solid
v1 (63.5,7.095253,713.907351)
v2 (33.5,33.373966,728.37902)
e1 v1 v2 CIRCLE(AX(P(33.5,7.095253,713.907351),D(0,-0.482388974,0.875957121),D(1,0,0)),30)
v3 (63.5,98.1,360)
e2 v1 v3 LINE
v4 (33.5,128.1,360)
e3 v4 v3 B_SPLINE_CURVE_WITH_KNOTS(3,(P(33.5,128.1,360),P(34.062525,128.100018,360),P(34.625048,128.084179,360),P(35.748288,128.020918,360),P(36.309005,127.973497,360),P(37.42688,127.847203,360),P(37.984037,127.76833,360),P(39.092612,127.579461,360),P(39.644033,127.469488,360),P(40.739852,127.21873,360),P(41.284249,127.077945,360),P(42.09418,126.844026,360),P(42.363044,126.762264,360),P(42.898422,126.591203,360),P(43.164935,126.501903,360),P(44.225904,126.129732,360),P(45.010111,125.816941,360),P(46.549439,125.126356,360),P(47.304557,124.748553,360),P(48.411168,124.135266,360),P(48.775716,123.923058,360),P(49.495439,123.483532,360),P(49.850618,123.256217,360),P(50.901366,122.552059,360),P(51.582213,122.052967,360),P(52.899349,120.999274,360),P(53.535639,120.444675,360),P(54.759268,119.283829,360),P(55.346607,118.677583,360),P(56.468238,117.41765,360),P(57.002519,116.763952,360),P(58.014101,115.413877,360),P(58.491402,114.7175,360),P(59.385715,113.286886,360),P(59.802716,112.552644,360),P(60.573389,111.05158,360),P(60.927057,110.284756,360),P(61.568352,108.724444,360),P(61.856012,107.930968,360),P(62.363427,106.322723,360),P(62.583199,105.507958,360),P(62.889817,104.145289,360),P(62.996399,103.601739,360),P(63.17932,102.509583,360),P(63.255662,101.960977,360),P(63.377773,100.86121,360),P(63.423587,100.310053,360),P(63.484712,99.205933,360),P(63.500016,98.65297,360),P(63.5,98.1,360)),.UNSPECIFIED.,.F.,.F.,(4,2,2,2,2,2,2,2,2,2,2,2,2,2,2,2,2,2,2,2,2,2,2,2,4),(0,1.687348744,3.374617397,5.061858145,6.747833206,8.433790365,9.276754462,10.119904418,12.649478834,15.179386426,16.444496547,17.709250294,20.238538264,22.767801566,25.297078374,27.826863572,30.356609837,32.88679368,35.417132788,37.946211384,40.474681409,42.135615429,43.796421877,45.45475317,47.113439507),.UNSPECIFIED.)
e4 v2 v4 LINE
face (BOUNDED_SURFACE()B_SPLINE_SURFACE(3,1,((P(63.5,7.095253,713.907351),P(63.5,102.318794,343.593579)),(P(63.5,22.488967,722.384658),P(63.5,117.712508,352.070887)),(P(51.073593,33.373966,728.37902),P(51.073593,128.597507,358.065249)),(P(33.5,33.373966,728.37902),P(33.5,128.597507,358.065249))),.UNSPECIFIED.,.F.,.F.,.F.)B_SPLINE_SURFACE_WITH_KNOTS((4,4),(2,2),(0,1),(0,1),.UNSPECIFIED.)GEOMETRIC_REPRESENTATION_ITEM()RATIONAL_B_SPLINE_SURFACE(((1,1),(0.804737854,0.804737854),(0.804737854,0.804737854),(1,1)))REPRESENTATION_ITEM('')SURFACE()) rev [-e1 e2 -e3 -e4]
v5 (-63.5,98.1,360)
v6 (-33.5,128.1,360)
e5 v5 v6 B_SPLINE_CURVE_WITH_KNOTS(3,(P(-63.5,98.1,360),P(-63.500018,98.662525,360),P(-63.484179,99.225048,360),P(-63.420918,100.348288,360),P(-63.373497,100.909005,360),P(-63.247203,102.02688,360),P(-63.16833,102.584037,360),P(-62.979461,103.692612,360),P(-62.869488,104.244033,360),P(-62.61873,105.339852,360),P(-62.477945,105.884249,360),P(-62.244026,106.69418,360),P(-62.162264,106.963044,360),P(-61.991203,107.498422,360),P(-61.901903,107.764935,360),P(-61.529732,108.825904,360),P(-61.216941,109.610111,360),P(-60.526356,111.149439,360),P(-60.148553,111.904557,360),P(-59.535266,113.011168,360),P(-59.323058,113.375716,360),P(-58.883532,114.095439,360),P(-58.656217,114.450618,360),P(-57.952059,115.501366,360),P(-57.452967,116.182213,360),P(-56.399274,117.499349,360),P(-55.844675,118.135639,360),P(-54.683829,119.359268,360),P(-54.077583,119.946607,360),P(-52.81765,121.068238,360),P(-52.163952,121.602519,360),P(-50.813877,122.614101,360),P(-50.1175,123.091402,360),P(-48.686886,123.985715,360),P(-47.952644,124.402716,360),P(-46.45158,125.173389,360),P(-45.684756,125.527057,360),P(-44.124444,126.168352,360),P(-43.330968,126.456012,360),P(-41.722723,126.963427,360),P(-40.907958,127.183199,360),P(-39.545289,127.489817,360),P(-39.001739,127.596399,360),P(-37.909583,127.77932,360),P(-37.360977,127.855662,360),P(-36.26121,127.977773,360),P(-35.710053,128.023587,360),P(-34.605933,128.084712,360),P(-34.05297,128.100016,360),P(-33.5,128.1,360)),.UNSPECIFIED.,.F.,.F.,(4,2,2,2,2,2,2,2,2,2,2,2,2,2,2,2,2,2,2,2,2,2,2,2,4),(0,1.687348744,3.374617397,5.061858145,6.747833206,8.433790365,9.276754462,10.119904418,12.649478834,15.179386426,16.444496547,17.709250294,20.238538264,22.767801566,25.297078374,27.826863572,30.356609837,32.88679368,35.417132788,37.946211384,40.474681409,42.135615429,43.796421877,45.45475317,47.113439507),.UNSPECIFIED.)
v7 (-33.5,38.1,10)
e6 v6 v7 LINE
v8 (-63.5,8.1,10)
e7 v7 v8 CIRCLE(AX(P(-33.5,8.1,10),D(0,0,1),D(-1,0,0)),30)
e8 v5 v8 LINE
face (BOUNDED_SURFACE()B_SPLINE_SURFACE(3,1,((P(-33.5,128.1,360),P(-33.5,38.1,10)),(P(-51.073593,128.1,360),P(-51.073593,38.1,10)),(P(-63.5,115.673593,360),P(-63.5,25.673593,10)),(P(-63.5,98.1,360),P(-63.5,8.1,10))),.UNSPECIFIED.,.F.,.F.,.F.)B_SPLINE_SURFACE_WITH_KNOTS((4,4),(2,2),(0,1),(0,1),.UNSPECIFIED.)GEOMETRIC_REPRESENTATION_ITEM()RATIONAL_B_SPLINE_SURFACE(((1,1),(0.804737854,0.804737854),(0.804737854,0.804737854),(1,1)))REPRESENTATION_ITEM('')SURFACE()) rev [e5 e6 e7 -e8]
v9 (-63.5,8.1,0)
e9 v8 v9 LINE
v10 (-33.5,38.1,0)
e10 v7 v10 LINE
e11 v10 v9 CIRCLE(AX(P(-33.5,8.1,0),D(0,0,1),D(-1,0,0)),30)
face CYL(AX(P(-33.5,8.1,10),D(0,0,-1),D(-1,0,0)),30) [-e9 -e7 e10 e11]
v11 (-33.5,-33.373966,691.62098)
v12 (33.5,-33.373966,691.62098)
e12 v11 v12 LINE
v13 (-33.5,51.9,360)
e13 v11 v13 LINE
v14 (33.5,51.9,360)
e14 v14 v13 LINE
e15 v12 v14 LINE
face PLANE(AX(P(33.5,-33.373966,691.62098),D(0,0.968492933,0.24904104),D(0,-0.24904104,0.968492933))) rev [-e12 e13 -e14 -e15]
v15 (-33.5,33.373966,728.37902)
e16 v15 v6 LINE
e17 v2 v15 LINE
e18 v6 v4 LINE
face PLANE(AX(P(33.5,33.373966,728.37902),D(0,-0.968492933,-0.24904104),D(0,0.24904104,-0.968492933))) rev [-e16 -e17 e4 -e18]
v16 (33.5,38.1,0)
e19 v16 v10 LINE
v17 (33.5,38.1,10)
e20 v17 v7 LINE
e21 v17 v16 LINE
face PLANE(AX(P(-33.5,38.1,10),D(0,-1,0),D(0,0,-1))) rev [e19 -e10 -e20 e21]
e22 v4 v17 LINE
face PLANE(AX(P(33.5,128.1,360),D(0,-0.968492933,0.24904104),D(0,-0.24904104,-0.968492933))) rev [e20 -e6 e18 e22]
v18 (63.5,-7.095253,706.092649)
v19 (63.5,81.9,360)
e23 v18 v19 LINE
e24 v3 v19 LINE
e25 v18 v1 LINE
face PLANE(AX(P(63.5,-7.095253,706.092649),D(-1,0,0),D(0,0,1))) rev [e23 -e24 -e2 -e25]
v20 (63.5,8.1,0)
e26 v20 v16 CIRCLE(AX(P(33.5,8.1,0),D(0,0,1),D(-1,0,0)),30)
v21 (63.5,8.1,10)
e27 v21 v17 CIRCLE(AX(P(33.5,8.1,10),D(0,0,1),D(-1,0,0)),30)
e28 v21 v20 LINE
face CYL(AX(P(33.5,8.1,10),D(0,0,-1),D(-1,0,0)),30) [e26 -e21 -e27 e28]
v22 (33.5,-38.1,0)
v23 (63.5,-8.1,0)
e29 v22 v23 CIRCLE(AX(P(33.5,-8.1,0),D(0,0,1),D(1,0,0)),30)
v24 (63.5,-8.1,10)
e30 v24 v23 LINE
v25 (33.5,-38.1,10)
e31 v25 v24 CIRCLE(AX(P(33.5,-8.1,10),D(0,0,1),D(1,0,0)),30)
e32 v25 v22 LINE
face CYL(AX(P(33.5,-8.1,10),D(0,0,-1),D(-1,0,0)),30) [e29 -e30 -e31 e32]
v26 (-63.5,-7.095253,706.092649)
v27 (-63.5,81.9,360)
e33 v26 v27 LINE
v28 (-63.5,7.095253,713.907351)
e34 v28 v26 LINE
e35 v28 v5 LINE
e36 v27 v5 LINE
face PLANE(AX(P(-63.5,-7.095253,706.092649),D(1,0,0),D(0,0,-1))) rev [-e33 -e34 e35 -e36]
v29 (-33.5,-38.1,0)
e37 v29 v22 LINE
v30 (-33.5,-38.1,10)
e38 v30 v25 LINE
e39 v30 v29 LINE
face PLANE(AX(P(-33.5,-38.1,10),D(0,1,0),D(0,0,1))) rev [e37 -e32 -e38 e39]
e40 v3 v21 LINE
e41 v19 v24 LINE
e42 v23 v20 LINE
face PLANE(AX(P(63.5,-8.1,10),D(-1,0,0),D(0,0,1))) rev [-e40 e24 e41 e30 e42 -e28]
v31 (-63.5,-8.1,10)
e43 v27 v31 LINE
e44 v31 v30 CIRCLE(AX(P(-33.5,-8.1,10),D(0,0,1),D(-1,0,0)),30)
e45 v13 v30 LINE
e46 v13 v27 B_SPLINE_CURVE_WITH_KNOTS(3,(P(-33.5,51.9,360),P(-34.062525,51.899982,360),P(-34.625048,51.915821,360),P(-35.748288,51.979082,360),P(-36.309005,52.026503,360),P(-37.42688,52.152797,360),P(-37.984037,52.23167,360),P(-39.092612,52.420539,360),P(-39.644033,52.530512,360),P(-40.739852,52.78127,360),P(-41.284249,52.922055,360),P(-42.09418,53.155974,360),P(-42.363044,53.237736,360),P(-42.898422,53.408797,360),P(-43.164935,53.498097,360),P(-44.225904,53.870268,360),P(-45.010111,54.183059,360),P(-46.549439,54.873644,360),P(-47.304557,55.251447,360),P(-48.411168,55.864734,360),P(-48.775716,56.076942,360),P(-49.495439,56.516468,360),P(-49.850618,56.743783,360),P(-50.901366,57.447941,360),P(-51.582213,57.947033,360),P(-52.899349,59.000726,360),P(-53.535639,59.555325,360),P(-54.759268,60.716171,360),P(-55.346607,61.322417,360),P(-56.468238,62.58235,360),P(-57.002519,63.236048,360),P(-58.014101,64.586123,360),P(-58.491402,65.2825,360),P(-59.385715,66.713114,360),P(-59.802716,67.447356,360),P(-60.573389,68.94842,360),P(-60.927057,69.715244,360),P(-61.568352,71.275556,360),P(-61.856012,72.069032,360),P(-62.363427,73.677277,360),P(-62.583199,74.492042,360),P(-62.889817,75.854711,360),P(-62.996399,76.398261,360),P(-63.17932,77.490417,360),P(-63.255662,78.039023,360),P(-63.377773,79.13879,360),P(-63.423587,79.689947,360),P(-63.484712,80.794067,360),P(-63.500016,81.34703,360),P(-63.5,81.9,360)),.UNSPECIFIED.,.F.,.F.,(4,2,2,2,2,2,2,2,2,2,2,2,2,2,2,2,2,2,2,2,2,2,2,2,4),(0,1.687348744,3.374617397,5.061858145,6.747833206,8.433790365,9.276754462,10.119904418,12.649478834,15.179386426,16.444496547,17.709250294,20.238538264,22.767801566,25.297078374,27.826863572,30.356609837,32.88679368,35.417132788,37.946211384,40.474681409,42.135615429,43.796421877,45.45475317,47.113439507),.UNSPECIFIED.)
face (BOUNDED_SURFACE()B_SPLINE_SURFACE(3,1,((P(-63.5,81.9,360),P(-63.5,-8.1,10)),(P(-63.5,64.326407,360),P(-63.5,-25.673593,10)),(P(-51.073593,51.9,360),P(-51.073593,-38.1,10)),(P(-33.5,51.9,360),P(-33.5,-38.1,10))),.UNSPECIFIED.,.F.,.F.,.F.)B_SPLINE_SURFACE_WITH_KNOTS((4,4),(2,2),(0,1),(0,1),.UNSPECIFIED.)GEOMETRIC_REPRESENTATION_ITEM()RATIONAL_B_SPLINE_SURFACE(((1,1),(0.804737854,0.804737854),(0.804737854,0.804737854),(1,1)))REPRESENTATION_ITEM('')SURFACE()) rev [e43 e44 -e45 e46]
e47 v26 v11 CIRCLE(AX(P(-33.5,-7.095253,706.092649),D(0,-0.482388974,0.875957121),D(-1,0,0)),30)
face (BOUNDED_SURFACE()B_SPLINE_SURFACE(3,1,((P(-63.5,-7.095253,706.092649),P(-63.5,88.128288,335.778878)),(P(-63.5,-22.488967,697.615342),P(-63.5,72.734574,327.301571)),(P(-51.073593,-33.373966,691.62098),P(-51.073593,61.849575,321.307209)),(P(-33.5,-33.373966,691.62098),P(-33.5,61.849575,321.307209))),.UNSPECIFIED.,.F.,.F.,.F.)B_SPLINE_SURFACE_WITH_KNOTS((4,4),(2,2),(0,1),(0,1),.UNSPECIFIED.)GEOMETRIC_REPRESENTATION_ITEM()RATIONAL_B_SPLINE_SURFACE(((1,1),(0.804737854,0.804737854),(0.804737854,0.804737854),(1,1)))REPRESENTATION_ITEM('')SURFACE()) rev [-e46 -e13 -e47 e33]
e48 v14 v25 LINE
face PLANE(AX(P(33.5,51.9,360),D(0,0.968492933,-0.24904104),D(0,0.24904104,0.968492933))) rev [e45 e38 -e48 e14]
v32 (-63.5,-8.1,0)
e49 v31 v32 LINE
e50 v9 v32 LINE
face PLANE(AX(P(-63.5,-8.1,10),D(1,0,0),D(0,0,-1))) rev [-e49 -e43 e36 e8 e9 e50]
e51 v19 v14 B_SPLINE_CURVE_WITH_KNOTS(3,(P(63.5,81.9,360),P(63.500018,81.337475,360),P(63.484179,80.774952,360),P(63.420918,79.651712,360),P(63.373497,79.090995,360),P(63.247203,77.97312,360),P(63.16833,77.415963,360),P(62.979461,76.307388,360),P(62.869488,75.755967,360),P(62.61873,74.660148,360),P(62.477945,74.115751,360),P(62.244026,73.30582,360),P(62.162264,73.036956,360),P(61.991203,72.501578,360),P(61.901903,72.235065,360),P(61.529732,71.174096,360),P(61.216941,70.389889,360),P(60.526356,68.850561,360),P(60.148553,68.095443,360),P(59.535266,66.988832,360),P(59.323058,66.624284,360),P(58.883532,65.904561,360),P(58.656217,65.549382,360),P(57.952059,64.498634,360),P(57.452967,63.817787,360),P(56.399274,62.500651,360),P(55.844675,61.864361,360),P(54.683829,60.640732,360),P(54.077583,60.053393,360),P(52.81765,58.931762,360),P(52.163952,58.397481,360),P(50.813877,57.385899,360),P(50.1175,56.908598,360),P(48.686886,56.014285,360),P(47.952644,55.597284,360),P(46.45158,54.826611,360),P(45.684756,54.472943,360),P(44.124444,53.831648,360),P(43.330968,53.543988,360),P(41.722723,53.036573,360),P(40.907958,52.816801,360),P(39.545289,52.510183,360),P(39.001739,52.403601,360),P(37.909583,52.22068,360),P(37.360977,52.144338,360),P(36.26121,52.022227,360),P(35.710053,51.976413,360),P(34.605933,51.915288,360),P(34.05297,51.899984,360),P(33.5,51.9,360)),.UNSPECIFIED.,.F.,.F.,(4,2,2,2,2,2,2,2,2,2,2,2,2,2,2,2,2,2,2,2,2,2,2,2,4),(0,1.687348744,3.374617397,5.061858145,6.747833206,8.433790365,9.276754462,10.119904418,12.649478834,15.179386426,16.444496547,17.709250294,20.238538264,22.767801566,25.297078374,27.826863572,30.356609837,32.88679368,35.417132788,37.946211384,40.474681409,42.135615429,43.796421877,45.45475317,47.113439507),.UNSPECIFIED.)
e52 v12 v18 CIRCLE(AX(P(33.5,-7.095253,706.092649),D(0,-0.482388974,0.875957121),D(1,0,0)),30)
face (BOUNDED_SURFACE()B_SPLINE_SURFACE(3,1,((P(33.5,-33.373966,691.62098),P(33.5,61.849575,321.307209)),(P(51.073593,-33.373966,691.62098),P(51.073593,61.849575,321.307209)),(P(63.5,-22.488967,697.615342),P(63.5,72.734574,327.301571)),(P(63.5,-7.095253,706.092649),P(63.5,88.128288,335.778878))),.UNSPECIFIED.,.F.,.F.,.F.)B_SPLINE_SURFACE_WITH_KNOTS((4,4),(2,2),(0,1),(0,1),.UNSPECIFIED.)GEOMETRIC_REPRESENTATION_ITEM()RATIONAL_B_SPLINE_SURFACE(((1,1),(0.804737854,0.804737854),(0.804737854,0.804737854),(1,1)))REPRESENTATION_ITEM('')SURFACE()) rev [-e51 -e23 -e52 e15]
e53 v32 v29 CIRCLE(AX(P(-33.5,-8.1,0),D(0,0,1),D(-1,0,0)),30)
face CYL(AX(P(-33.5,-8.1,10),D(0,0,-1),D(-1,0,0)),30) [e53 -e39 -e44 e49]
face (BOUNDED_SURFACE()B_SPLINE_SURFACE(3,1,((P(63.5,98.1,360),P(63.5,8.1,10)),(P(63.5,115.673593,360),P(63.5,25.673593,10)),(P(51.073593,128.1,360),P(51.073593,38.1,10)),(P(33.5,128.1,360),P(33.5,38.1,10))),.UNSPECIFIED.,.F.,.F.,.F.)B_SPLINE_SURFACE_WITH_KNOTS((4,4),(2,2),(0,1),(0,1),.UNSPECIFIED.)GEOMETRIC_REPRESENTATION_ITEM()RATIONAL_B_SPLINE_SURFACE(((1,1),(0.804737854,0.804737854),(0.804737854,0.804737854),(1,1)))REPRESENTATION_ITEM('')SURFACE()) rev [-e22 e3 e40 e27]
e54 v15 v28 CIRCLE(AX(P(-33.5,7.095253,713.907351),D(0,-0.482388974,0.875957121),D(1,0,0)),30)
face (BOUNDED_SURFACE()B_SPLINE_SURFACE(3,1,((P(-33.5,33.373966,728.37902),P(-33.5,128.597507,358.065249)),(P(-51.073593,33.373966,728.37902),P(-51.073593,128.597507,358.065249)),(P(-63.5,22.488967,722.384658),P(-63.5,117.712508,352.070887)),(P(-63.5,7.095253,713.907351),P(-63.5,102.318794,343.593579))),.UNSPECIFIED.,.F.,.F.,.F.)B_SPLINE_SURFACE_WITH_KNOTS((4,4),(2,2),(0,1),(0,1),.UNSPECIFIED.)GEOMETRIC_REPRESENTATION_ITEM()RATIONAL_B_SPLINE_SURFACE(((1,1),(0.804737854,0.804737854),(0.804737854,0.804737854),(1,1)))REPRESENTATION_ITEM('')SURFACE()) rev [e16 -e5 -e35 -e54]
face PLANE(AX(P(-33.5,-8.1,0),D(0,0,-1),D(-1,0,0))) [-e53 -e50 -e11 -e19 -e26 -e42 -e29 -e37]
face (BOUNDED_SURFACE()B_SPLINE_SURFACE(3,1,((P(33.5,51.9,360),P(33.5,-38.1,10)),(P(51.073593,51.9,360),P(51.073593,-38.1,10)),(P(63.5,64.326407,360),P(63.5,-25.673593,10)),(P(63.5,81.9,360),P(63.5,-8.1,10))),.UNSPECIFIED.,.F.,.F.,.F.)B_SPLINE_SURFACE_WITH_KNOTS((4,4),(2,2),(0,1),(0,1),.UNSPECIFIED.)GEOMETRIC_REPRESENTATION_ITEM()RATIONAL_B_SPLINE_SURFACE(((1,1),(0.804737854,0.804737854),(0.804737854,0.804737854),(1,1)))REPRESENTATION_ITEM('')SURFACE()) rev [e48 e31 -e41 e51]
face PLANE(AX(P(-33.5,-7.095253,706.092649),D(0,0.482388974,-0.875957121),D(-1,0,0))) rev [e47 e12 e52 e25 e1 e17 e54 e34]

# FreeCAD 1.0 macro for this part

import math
import FreeCAD as App
import Part
import Sketcher
Q = App.Units.Quantity

doc = App.newDocument("Part")
body = doc.addObject("PartDesign::Body", "Body")

# Sketch on XY plane
sketch1 = body.newObject("Sketcher::SketchObject", "Sketch")
sketch1.AttachmentSupport = (doc.getObject("XY_Plane"), [""])
sketch1.MapMode = "FlatFace"
sketch1.addGeometry(Part.LineSegment(App.Vector(-34, -38, 0), App.Vector(34, -38, 0)), False)
sketch1.addGeometry(Part.ArcOfCircle(Part.Circle(App.Vector(34, -8, 0), App.Vector(0, 0, 1), 30), math.radians(-90), math.radians(0)), False)
sketch1.addGeometry(Part.LineSegment(App.Vector(64, -8, 0), App.Vector(64, 8, 0)), False)
sketch1.addGeometry(Part.ArcOfCircle(Part.Circle(App.Vector(34, 8, 0), App.Vector(0, 0, 1), 30), math.radians(0), math.radians(90)), False)
sketch1.addGeometry(Part.LineSegment(App.Vector(34, 38, 0), App.Vector(-34, 38, 0)), False)
sketch1.addGeometry(Part.ArcOfCircle(Part.Circle(App.Vector(-34, 8, 0), App.Vector(0, 0, 1), 30), math.radians(90), math.radians(180)), False)
sketch1.addGeometry(Part.LineSegment(App.Vector(-64, 8, 0), App.Vector(-64, -8, 0)), False)
sketch1.addGeometry(Part.ArcOfCircle(Part.Circle(App.Vector(-34, -8, 0), App.Vector(0, 0, 1), 30), math.radians(180), math.radians(270)), False)
sketch1.addConstraint(Sketcher.Constraint("Tangent", 0, 2, 1, 1))
sketch1.addConstraint(Sketcher.Constraint("Tangent", 1, 2, 2, 1))
sketch1.addConstraint(Sketcher.Constraint("Tangent", 2, 2, 3, 1))
sketch1.addConstraint(Sketcher.Constraint("Tangent", 3, 2, 4, 1))
sketch1.addConstraint(Sketcher.Constraint("Tangent", 4, 2, 5, 1))
sketch1.addConstraint(Sketcher.Constraint("Tangent", 5, 2, 6, 1))
sketch1.addConstraint(Sketcher.Constraint("Tangent", 6, 2, 7, 1))
sketch1.addConstraint(Sketcher.Constraint("Tangent", 7, 2, 0, 1))
sketch1.addConstraint(Sketcher.Constraint("Horizontal", 0))
sketch1.addConstraint(Sketcher.Constraint("Vertical", 2))
sketch1.addConstraint(Sketcher.Constraint("Horizontal", 4))
sketch1.addConstraint(Sketcher.Constraint("Vertical", 6))
sketch1.addConstraint(Sketcher.Constraint("Equal", 1, 3))
sketch1.addConstraint(Sketcher.Constraint("Equal", 3, 5))
sketch1.addConstraint(Sketcher.Constraint("Equal", 5, 7))
sketch1.addConstraint(Sketcher.Constraint("Symmetric", 1, 3, 5, 3, -1, 1))
sketch1.addConstraint(Sketcher.Constraint("Radius", 1, Q("30 mm")))
sketch1.addConstraint(Sketcher.Constraint("DistanceX", 0, 1, 0, 2, Q("67 mm")))
sketch1.addConstraint(Sketcher.Constraint("DistanceY", 2, 1, 2, 2, Q("16.2 mm")))
pad1 = body.newObject("PartDesign::Pad", "Pad")
pad1.Profile = sketch1
pad1.Length = 10

# Sketch on XY plane
sketch2 = body.newObject("Sketcher::SketchObject", "Sketch001")
sketch2.AttachmentSupport = (doc.getObject("XY_Plane"), [""])
sketch2.MapMode = "FlatFace"
sketch2.AttachmentOffset = App.Placement(App.Vector(0, 0, 10), App.Rotation())
sketch2.addGeometry(Part.LineSegment(App.Vector(-34, -38, 0), App.Vector(34, -38, 0)), False)
sketch2.addGeometry(Part.ArcOfCircle(Part.Circle(App.Vector(34, -8, 0), App.Vector(0, 0, 1), 30), math.radians(-90), math.radians(0)), False)
sketch2.addGeometry(Part.LineSegment(App.Vector(64, -8, 0), App.Vector(64, 8, 0)), False)
sketch2.addGeometry(Part.ArcOfCircle(Part.Circle(App.Vector(34, 8, 0), App.Vector(0, 0, 1), 30), math.radians(0), math.radians(90)), False)
sketch2.addGeometry(Part.LineSegment(App.Vector(34, 38, 0), App.Vector(-34, 38, 0)), False)
sketch2.addGeometry(Part.ArcOfCircle(Part.Circle(App.Vector(-34, 8, 0), App.Vector(0, 0, 1), 30), math.radians(90), math.radians(180)), False)
sketch2.addGeometry(Part.LineSegment(App.Vector(-64, 8, 0), App.Vector(-64, -8, 0)), False)
sketch2.addGeometry(Part.ArcOfCircle(Part.Circle(App.Vector(-34, -8, 0), App.Vector(0, 0, 1), 30), math.radians(180), math.radians(270)), False)
sketch2.addConstraint(Sketcher.Constraint("Tangent", 0, 2, 1, 1))
sketch2.addConstraint(Sketcher.Constraint("Tangent", 1, 2, 2, 1))
sketch2.addConstraint(Sketcher.Constraint("Tangent", 2, 2, 3, 1))
sketch2.addConstraint(Sketcher.Constraint("Tangent", 3, 2, 4, 1))
sketch2.addConstraint(Sketcher.Constraint("Tangent", 4, 2, 5, 1))
sketch2.addConstraint(Sketcher.Constraint("Tangent", 5, 2, 6, 1))
sketch2.addConstraint(Sketcher.Constraint("Tangent", 6, 2, 7, 1))
sketch2.addConstraint(Sketcher.Constraint("Tangent", 7, 2, 0, 1))
sketch2.addConstraint(Sketcher.Constraint("Horizontal", 0))
sketch2.addConstraint(Sketcher.Constraint("Vertical", 2))
sketch2.addConstraint(Sketcher.Constraint("Horizontal", 4))
sketch2.addConstraint(Sketcher.Constraint("Vertical", 6))
sketch2.addConstraint(Sketcher.Constraint("Equal", 1, 3))
sketch2.addConstraint(Sketcher.Constraint("Equal", 3, 5))
sketch2.addConstraint(Sketcher.Constraint("Equal", 5, 7))
sketch2.addConstraint(Sketcher.Constraint("Symmetric", 1, 3, 5, 3, -1, 1))
sketch2.addConstraint(Sketcher.Constraint("Radius", 1, Q("30 mm")))
sketch2.addConstraint(Sketcher.Constraint("DistanceX", 0, 1, 0, 2, Q("67 mm")))
sketch2.addConstraint(Sketcher.Constraint("DistanceY", 2, 1, 2, 2, Q("16.2 mm")))

# Sketch on YZ plane
sketch3 = body.newObject("Sketcher::SketchObject", "Sketch002")
sketch3.AttachmentSupport = (doc.getObject("YZ_Plane"), [""])
sketch3.MapMode = "FlatFace"
sketch3.addGeometry(Part.LineSegment(App.Vector(0, 710, 0), App.Vector(90, 360, 0)), False)
sketch3.addGeometry(Part.LineSegment(App.Vector(90, 360, 0), App.Vector(0, 10, 0)), False)
sketch3.addConstraint(Sketcher.Constraint("Coincident", 0, 2, 1, 1))
sketch3.addConstraint(Sketcher.Constraint("PointOnObject", 0, 1, -2))
sketch3.addConstraint(Sketcher.Constraint("PointOnObject", 1, 2, -2))
sketch3.addConstraint(Sketcher.Constraint("Equal", 0, 1))
sketch3.addConstraint(Sketcher.Constraint("DistanceY", -1, 1, 0, 1, Q("710 mm")))
sketch3.addConstraint(Sketcher.Constraint("DistanceX", -1, 1, 0, 2, Q("90 mm")))
sketch3.addConstraint(Sketcher.Constraint("DistanceY", -1, 1, 0, 2, Q("360 mm")))
doc.recompute()

additivepipe = body.newObject("PartDesign::AdditivePipe", "AdditivePipe")
additivepipe.Profile = sketch2
additivepipe.Spine = (sketch3, ["Edge1", "Edge2"])
additivepipe.Transition = "Right corner"

doc.recompute()
